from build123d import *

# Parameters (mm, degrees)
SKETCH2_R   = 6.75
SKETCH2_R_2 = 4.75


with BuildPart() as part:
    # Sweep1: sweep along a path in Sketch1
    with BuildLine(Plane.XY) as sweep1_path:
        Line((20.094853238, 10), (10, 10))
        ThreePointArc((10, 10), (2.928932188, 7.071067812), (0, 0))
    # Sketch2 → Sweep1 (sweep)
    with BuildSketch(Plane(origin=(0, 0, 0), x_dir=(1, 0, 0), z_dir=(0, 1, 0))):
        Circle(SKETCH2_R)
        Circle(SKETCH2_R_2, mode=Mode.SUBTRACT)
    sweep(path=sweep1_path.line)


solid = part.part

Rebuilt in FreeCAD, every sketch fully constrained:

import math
import FreeCAD as App
import Part
import Sketcher
from FreeCAD import Vector

doc = App.newDocument("Part")
body = doc.addObject("PartDesign::Body", "Body")

sketch1 = doc.addObject("Sketcher::SketchObject", "Sketch")
body.addObject(sketch1)
sketch1.AttachmentSupport = (doc.XZ_Plane, [""])
sketch1.MapMode = "FlatFace"
sketch1.addGeometry(Part.Circle(Vector(0, 0, 0), Vector(0, 0, 1), 6.8), False)
sketch1.addGeometry(Part.Circle(Vector(0, 0, 0), Vector(0, 0, 1), 4.8), False)
sketch1.addConstraint(Sketcher.Constraint("Coincident", 0, 3, -1, 1))
sketch1.addConstraint(Sketcher.Constraint("Coincident", 1, 3, -1, 1))
sketch1.addConstraint(Sketcher.Constraint("Diameter", 0, 13.5))
sketch1.addConstraint(Sketcher.Constraint("Diameter", 1, 9.5))

sketch2 = doc.addObject("Sketcher::SketchObject", "Sketch001")
body.addObject(sketch2)
sketch2.AttachmentSupport = (doc.XY_Plane, [""])
sketch2.MapMode = "FlatFace"
sketch2.addGeometry(Part.LineSegment(Vector(20, 10, 0), Vector(10, 10, 0)), False)
sketch2.addGeometry(Part.ArcOfCircle(Part.Circle(Vector(10, 0, 0), Vector(0, 0, 1), 10), math.radians(90), math.radians(180)), False)
sketch2.addConstraint(Sketcher.Constraint("Tangent", 0, 2, 1, 1))
sketch2.addConstraint(Sketcher.Constraint("Horizontal", 0))
sketch2.addConstraint(Sketcher.Constraint("Coincident", 1, 2, -1, 1))
sketch2.addConstraint(Sketcher.Constraint("PointOnObject", 1, 3, -1))
sketch2.addConstraint(Sketcher.Constraint("Radius", 1, 10.0))
sketch2.addConstraint(Sketcher.Constraint("DistanceX", 0, 2, 0, 1, 10.094853))
doc.recompute()

additivepipe = doc.addObject("PartDesign::AdditivePipe", "AdditivePipe")
body.addObject(additivepipe)
additivepipe.Profile = sketch1
additivepipe.Spine = (sketch2, ["Edge1", "Edge2"])

doc.recompute()
